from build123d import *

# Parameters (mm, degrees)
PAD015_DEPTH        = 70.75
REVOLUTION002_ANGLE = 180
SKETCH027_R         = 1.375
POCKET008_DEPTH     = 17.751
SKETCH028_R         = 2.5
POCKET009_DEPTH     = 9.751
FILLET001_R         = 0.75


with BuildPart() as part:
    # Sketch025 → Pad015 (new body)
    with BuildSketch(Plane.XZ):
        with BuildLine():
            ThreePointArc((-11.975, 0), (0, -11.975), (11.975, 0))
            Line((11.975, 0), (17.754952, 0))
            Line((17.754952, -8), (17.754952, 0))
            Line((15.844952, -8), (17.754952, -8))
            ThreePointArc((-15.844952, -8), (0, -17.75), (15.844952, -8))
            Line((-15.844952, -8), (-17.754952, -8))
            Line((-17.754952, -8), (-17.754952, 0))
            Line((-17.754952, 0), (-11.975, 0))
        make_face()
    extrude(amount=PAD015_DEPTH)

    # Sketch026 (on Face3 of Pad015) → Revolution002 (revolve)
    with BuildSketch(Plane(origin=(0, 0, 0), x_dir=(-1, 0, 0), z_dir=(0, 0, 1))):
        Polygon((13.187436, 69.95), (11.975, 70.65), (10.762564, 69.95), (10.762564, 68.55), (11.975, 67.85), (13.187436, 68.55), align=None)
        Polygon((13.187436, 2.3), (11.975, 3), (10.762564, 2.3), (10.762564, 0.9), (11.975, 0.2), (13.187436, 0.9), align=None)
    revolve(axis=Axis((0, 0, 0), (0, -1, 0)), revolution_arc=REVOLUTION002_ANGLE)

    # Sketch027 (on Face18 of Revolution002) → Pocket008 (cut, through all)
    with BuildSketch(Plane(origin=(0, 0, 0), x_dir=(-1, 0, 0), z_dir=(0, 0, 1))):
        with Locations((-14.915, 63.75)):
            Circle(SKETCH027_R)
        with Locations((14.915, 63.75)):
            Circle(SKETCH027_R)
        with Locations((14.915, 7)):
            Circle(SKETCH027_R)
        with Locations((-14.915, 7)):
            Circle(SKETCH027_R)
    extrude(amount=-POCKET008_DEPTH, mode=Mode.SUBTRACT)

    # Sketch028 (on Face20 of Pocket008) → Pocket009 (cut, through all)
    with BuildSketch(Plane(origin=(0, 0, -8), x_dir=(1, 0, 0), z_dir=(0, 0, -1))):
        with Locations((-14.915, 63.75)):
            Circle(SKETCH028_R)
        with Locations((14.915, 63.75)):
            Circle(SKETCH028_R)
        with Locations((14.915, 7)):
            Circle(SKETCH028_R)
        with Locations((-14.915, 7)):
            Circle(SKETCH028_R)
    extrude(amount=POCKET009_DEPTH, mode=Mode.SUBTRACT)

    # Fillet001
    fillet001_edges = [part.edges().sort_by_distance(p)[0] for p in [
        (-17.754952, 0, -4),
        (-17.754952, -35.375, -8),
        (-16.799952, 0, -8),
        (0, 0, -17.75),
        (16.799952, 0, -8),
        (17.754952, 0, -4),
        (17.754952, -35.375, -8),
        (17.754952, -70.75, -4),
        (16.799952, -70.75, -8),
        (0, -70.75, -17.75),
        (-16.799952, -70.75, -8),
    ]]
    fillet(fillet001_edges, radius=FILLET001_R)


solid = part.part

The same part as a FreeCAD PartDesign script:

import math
import FreeCAD as App
import Part
import Sketcher

V = App.Vector
Q = App.Units.Quantity


def edges_at(feature, points):
    """Names of the edges that pass closest to the given points."""
    edges = feature.Shape.Edges
    near = lambda p: min(range(len(edges)), key=lambda i: edges[i].distToShape(Part.Vertex(*p))[0])
    return sorted({f"Edge{near(p) + 1}" for p in points})

doc = App.newDocument("Part")
body = doc.addObject("PartDesign::Body", "Body")

# Sketch on XZ plane
sketch1 = doc.addObject("Sketcher::SketchObject", "Sketch")
body.addObject(sketch1)
sketch1.AttachmentSupport = (doc.XZ_Plane, [""])
sketch1.MapMode = "FlatFace"
sketch1.addGeometry(Part.ArcOfCircle(Part.Circle(V(0, 0, 0), V(0, 0, 1), 11.975), math.radians(180), math.radians(360)), False)
sketch1.addGeometry(Part.LineSegment(V(-11.975, 0, 0), V(-17.754952, 0, 0)), False)
sketch1.addGeometry(Part.LineSegment(V(-17.754952, 0, 0), V(-17.754952, -8, 0)), False)
sketch1.addGeometry(Part.LineSegment(V(-17.754952, -8, 0), V(-15.844952, -8, 0)), False)
sketch1.addGeometry(Part.ArcOfCircle(Part.Circle(V(0, 0, 0), V(0, 0, 1), 17.75), math.radians(-153.211124), math.radians(-26.788876)), False)
sketch1.addGeometry(Part.LineSegment(V(15.844952, -8, 0), V(17.754952, -8, 0)), False)
sketch1.addGeometry(Part.LineSegment(V(17.754952, -8, 0), V(17.754952, 0, 0)), False)
sketch1.addGeometry(Part.LineSegment(V(17.754952, 0, 0), V(11.975, 0, 0)), False)
sketch1.addConstraint(Sketcher.Constraint("Coincident", 0, 1, 1, 1))
sketch1.addConstraint(Sketcher.Constraint("Coincident", 1, 2, 2, 1))
sketch1.addConstraint(Sketcher.Constraint("Coincident", 2, 2, 3, 1))
sketch1.addConstraint(Sketcher.Constraint("Coincident", 3, 2, 4, 1))
sketch1.addConstraint(Sketcher.Constraint("Coincident", 4, 2, 5, 1))
sketch1.addConstraint(Sketcher.Constraint("Coincident", 5, 2, 6, 1))
sketch1.addConstraint(Sketcher.Constraint("Coincident", 6, 2, 7, 1))
sketch1.addConstraint(Sketcher.Constraint("Coincident", 7, 2, 0, 2))
sketch1.addConstraint(Sketcher.Constraint("Horizontal", 1))
sketch1.addConstraint(Sketcher.Constraint("Vertical", 2))
sketch1.addConstraint(Sketcher.Constraint("Horizontal", 3))
sketch1.addConstraint(Sketcher.Constraint("Horizontal", 5))
sketch1.addConstraint(Sketcher.Constraint("Vertical", 6))
sketch1.addConstraint(Sketcher.Constraint("Horizontal", 7))
sketch1.addConstraint(Sketcher.Constraint("Coincident", 0, 3, -1, 1))
sketch1.addConstraint(Sketcher.Constraint("Coincident", 4, 3, -1, 1))
sketch1.addConstraint(Sketcher.Constraint("Symmetric", 1, 2, 6, 2, -1, 1))
sketch1.addConstraint(Sketcher.Constraint("PointOnObject", 0, 1, -1))
sketch1.addConstraint(Sketcher.Constraint("Horizontal", 3, 2, 4, 2))
sketch1.addConstraint(Sketcher.Constraint("DistanceY", 2, 2, 2, 1, Q("8 mm")))
sketch1.addConstraint(Sketcher.Constraint("Radius", 4, Q("17.75 mm")))
sketch1.addConstraint(Sketcher.Constraint("Radius", 0, Q("11.975 mm")))
sketch1.addConstraint(Sketcher.Constraint("DistanceX", 3, 1, 3, 2, Q("1.91 mm")))
pad1 = doc.addObject("PartDesign::Pad", "Pad")
body.addObject(pad1)
pad1.Profile = sketch1
pad1.Length = 70.75

# Sketch on XY plane
sketch2 = doc.addObject("Sketcher::SketchObject", "Sketch001")
body.addObject(sketch2)
sketch2.AttachmentSupport = (doc.XY_Plane, [""])
sketch2.MapMode = "FlatFace"
sketch2.addGeometry(Part.LineSegment(V(-13.187436, -69.95, 0), V(-11.975, -70.65, 0)), False)
sketch2.addGeometry(Part.LineSegment(V(-11.975, -70.65, 0), V(-10.762564, -69.95, 0)), False)
sketch2.addGeometry(Part.LineSegment(V(-10.762564, -69.95, 0), V(-10.762564, -68.55, 0)), False)
sketch2.addGeometry(Part.LineSegment(V(-10.762564, -68.55, 0), V(-11.975, -67.85, 0)), False)
sketch2.addGeometry(Part.LineSegment(V(-11.975, -67.85, 0), V(-13.187436, -68.55, 0)), False)
sketch2.addGeometry(Part.LineSegment(V(-13.187436, -68.55, 0), V(-13.187436, -69.95, 0)), False)
sketch2.addGeometry(Part.LineSegment(V(-13.187436, -2.3, 0), V(-11.975, -3, 0)), False)
sketch2.addGeometry(Part.LineSegment(V(-11.975, -3, 0), V(-10.762564, -2.3, 0)), False)
sketch2.addGeometry(Part.LineSegment(V(-10.762564, -2.3, 0), V(-10.762564, -0.9, 0)), False)
sketch2.addGeometry(Part.LineSegment(V(-10.762564, -0.9, 0), V(-11.975, -0.2, 0)), False)
sketch2.addGeometry(Part.LineSegment(V(-11.975, -0.2, 0), V(-13.187436, -0.9, 0)), False)
sketch2.addGeometry(Part.LineSegment(V(-13.187436, -0.9, 0), V(-13.187436, -2.3, 0)), False)
sketch2.addConstraint(Sketcher.Constraint("Coincident", 0, 2, 1, 1))
sketch2.addConstraint(Sketcher.Constraint("Coincident", 1, 2, 2, 1))
sketch2.addConstraint(Sketcher.Constraint("Coincident", 2, 2, 3, 1))
sketch2.addConstraint(Sketcher.Constraint("Coincident", 3, 2, 4, 1))
sketch2.addConstraint(Sketcher.Constraint("Coincident", 4, 2, 5, 1))
sketch2.addConstraint(Sketcher.Constraint("Coincident", 5, 2, 0, 1))
sketch2.addConstraint(Sketcher.Constraint("Coincident", 6, 2, 7, 1))
sketch2.addConstraint(Sketcher.Constraint("Coincident", 7, 2, 8, 1))
sketch2.addConstraint(Sketcher.Constraint("Coincident", 8, 2, 9, 1))
sketch2.addConstraint(Sketcher.Constraint("Coincident", 9, 2, 10, 1))
sketch2.addConstraint(Sketcher.Constraint("Coincident", 10, 2, 11, 1))
sketch2.addConstraint(Sketcher.Constraint("Coincident", 11, 2, 6, 1))
sketch2.addConstraint(Sketcher.Constraint("Vertical", 2))
sketch2.addConstraint(Sketcher.Constraint("Vertical", 5))
sketch2.addConstraint(Sketcher.Constraint("Vertical", 8))
sketch2.addConstraint(Sketcher.Constraint("Vertical", 11))
sketch2.addConstraint(Sketcher.Constraint("Parallel", 0, 3))
sketch2.addConstraint(Sketcher.Constraint("Parallel", 1, 4))
sketch2.addConstraint(Sketcher.Constraint("Parallel", 3, 6))
sketch2.addConstraint(Sketcher.Constraint("Parallel", 4, 7))
sketch2.addConstraint(Sketcher.Constraint("Parallel", 6, 9))
sketch2.addConstraint(Sketcher.Constraint("Parallel", 7, 10))
sketch2.addConstraint(Sketcher.Constraint("Horizontal", 2, 2, 4, 2))
sketch2.addConstraint(Sketcher.Constraint("Horizontal", 1, 2, 5, 2))
sketch2.addConstraint(Sketcher.Constraint("Horizontal", 8, 2, 10, 2))
sketch2.addConstraint(Sketcher.Constraint("Horizontal", 7, 2, 11, 2))
sketch2.addConstraint(Sketcher.Constraint("Vertical", 0, 2, 3, 2))
sketch2.addConstraint(Sketcher.Constraint("Vertical", 3, 2, 6, 2))
sketch2.addConstraint(Sketcher.Constraint("Vertical", 2, 2, 7, 2))
sketch2.addConstraint(Sketcher.Constraint("Equal", 5, 8))
sketch2.addConstraint(Sketcher.Constraint("Angle", 0, Q("-29.999991 deg")))
sketch2.addConstraint(Sketcher.Constraint("DistanceY", 2, 1, 2, 2, Q("1.4 mm")))
sketch2.addConstraint(Sketcher.Constraint("DistanceY", 6, 2, -1, 1, Q("3 mm")))
sketch2.addConstraint(Sketcher.Constraint("Distance", 0, Q("1.4 mm")))
sketch2.addConstraint(Sketcher.Constraint("DistanceY", 0, 2, -1, 1, Q("70.65 mm")))
sketch2.addConstraint(Sketcher.Constraint("DistanceX", 0, 2, -1, 1, Q("11.975 mm")))
revolution = doc.addObject("PartDesign::Revolution", "Revolution")
body.addObject(revolution)
revolution.Profile = sketch2
revolution.ReferenceAxis = (sketch2, ["V_Axis"])
revolution.Angle = 180
revolution.Reversed = True

# Sketch on XY plane
sketch3 = doc.addObject("Sketcher::SketchObject", "Sketch002")
body.addObject(sketch3)
sketch3.AttachmentSupport = (doc.XY_Plane, [""])
sketch3.MapMode = "FlatFace"
sketch3.addGeometry(Part.Circle(V(14.915, -63.75, 0), V(0, 0, 1), 1.375), False)
sketch3.addGeometry(Part.Circle(V(-14.915, -63.75, 0), V(0, 0, 1), 1.375), False)
sketch3.addGeometry(Part.Circle(V(-14.915, -7, 0), V(0, 0, 1), 1.375), False)
sketch3.addGeometry(Part.Circle(V(14.915, -7, 0), V(0, 0, 1), 1.375), False)
sketch3.addConstraint(Sketcher.Constraint("Equal", 0, 1))
sketch3.addConstraint(Sketcher.Constraint("Equal", 1, 2))
sketch3.addConstraint(Sketcher.Constraint("Equal", 2, 3))
sketch3.addConstraint(Sketcher.Constraint("Symmetric", 0, 3, 1, 3, -2))
sketch3.addConstraint(Sketcher.Constraint("Symmetric", 2, 3, 3, 3, -2))
sketch3.addConstraint(Sketcher.Constraint("Vertical", 1, 3, 2, 3))
sketch3.addConstraint(Sketcher.Constraint("Diameter", 0, Q("2.75 mm")))
sketch3.addConstraint(Sketcher.Constraint("DistanceY", 2, 3, -1, 1, Q("7 mm")))
sketch3.addConstraint(Sketcher.Constraint("DistanceY", 0, 3, -1, 1, Q("63.75 mm")))
sketch3.addConstraint(Sketcher.Constraint("DistanceX", 1, 3, 0, 3, Q("29.83 mm")))
pocket1 = doc.addObject("PartDesign::Pocket", "Pocket")
body.addObject(pocket1)
pocket1.Profile = sketch3
pocket1.Type = "ThroughAll"

# Sketch on XY plane
sketch4 = doc.addObject("Sketcher::SketchObject", "Sketch003")
body.addObject(sketch4)
sketch4.AttachmentSupport = (doc.XY_Plane, [""])
sketch4.MapMode = "FlatFace"
sketch4.AttachmentOffset = App.Placement(V(0, 0, -8), App.Rotation())
sketch4.addGeometry(Part.Circle(V(-14.915, -63.75, 0), V(0, 0, 1), 2.5), False)
sketch4.addGeometry(Part.Circle(V(14.915, -63.75, 0), V(0, 0, 1), 2.5), False)
sketch4.addGeometry(Part.Circle(V(14.915, -7, 0), V(0, 0, 1), 2.5), False)
sketch4.addGeometry(Part.Circle(V(-14.915, -7, 0), V(0, 0, 1), 2.5), False)
sketch4.addConstraint(Sketcher.Constraint("Equal", 0, 1))
sketch4.addConstraint(Sketcher.Constraint("Equal", 1, 2))
sketch4.addConstraint(Sketcher.Constraint("Equal", 2, 3))
sketch4.addConstraint(Sketcher.Constraint("Symmetric", 0, 3, 1, 3, -2))
sketch4.addConstraint(Sketcher.Constraint("Symmetric", 2, 3, 3, 3, -2))
sketch4.addConstraint(Sketcher.Constraint("Vertical", 1, 3, 2, 3))
sketch4.addConstraint(Sketcher.Constraint("Diameter", 0, Q("5 mm")))
sketch4.addConstraint(Sketcher.Constraint("DistanceY", 2, 3, -1, 1, Q("7 mm")))
sketch4.addConstraint(Sketcher.Constraint("DistanceY", 0, 3, -1, 1, Q("63.75 mm")))
sketch4.addConstraint(Sketcher.Constraint("DistanceX", 0, 3, 1, 3, Q("29.83 mm")))
pocket2 = doc.addObject("PartDesign::Pocket", "Pocket001")
body.addObject(pocket2)
pocket2.Profile = sketch4
pocket2.Type = "ThroughAll"
doc.recompute()

fillet = doc.addObject("PartDesign::Fillet", "Fillet")
body.addObject(fillet)
fillet.Base = (pocket2, edges_at(pocket2, [
    (-17.755, 0, -4),
    (-17.755, -35.375, -8),
    (-16.8, 0, -8),
    (0, 0, -17.75),
    (16.8, 0, -8),
    (17.755, 0, -4),
    (17.755, -35.375, -8),
    (17.755, -70.75, -4),
    (16.8, -70.75, -8),
    (0, -70.75, -17.75),
    (-16.8, -70.75, -8),
]))
fillet.Radius = 0.75

doc.recompute()
